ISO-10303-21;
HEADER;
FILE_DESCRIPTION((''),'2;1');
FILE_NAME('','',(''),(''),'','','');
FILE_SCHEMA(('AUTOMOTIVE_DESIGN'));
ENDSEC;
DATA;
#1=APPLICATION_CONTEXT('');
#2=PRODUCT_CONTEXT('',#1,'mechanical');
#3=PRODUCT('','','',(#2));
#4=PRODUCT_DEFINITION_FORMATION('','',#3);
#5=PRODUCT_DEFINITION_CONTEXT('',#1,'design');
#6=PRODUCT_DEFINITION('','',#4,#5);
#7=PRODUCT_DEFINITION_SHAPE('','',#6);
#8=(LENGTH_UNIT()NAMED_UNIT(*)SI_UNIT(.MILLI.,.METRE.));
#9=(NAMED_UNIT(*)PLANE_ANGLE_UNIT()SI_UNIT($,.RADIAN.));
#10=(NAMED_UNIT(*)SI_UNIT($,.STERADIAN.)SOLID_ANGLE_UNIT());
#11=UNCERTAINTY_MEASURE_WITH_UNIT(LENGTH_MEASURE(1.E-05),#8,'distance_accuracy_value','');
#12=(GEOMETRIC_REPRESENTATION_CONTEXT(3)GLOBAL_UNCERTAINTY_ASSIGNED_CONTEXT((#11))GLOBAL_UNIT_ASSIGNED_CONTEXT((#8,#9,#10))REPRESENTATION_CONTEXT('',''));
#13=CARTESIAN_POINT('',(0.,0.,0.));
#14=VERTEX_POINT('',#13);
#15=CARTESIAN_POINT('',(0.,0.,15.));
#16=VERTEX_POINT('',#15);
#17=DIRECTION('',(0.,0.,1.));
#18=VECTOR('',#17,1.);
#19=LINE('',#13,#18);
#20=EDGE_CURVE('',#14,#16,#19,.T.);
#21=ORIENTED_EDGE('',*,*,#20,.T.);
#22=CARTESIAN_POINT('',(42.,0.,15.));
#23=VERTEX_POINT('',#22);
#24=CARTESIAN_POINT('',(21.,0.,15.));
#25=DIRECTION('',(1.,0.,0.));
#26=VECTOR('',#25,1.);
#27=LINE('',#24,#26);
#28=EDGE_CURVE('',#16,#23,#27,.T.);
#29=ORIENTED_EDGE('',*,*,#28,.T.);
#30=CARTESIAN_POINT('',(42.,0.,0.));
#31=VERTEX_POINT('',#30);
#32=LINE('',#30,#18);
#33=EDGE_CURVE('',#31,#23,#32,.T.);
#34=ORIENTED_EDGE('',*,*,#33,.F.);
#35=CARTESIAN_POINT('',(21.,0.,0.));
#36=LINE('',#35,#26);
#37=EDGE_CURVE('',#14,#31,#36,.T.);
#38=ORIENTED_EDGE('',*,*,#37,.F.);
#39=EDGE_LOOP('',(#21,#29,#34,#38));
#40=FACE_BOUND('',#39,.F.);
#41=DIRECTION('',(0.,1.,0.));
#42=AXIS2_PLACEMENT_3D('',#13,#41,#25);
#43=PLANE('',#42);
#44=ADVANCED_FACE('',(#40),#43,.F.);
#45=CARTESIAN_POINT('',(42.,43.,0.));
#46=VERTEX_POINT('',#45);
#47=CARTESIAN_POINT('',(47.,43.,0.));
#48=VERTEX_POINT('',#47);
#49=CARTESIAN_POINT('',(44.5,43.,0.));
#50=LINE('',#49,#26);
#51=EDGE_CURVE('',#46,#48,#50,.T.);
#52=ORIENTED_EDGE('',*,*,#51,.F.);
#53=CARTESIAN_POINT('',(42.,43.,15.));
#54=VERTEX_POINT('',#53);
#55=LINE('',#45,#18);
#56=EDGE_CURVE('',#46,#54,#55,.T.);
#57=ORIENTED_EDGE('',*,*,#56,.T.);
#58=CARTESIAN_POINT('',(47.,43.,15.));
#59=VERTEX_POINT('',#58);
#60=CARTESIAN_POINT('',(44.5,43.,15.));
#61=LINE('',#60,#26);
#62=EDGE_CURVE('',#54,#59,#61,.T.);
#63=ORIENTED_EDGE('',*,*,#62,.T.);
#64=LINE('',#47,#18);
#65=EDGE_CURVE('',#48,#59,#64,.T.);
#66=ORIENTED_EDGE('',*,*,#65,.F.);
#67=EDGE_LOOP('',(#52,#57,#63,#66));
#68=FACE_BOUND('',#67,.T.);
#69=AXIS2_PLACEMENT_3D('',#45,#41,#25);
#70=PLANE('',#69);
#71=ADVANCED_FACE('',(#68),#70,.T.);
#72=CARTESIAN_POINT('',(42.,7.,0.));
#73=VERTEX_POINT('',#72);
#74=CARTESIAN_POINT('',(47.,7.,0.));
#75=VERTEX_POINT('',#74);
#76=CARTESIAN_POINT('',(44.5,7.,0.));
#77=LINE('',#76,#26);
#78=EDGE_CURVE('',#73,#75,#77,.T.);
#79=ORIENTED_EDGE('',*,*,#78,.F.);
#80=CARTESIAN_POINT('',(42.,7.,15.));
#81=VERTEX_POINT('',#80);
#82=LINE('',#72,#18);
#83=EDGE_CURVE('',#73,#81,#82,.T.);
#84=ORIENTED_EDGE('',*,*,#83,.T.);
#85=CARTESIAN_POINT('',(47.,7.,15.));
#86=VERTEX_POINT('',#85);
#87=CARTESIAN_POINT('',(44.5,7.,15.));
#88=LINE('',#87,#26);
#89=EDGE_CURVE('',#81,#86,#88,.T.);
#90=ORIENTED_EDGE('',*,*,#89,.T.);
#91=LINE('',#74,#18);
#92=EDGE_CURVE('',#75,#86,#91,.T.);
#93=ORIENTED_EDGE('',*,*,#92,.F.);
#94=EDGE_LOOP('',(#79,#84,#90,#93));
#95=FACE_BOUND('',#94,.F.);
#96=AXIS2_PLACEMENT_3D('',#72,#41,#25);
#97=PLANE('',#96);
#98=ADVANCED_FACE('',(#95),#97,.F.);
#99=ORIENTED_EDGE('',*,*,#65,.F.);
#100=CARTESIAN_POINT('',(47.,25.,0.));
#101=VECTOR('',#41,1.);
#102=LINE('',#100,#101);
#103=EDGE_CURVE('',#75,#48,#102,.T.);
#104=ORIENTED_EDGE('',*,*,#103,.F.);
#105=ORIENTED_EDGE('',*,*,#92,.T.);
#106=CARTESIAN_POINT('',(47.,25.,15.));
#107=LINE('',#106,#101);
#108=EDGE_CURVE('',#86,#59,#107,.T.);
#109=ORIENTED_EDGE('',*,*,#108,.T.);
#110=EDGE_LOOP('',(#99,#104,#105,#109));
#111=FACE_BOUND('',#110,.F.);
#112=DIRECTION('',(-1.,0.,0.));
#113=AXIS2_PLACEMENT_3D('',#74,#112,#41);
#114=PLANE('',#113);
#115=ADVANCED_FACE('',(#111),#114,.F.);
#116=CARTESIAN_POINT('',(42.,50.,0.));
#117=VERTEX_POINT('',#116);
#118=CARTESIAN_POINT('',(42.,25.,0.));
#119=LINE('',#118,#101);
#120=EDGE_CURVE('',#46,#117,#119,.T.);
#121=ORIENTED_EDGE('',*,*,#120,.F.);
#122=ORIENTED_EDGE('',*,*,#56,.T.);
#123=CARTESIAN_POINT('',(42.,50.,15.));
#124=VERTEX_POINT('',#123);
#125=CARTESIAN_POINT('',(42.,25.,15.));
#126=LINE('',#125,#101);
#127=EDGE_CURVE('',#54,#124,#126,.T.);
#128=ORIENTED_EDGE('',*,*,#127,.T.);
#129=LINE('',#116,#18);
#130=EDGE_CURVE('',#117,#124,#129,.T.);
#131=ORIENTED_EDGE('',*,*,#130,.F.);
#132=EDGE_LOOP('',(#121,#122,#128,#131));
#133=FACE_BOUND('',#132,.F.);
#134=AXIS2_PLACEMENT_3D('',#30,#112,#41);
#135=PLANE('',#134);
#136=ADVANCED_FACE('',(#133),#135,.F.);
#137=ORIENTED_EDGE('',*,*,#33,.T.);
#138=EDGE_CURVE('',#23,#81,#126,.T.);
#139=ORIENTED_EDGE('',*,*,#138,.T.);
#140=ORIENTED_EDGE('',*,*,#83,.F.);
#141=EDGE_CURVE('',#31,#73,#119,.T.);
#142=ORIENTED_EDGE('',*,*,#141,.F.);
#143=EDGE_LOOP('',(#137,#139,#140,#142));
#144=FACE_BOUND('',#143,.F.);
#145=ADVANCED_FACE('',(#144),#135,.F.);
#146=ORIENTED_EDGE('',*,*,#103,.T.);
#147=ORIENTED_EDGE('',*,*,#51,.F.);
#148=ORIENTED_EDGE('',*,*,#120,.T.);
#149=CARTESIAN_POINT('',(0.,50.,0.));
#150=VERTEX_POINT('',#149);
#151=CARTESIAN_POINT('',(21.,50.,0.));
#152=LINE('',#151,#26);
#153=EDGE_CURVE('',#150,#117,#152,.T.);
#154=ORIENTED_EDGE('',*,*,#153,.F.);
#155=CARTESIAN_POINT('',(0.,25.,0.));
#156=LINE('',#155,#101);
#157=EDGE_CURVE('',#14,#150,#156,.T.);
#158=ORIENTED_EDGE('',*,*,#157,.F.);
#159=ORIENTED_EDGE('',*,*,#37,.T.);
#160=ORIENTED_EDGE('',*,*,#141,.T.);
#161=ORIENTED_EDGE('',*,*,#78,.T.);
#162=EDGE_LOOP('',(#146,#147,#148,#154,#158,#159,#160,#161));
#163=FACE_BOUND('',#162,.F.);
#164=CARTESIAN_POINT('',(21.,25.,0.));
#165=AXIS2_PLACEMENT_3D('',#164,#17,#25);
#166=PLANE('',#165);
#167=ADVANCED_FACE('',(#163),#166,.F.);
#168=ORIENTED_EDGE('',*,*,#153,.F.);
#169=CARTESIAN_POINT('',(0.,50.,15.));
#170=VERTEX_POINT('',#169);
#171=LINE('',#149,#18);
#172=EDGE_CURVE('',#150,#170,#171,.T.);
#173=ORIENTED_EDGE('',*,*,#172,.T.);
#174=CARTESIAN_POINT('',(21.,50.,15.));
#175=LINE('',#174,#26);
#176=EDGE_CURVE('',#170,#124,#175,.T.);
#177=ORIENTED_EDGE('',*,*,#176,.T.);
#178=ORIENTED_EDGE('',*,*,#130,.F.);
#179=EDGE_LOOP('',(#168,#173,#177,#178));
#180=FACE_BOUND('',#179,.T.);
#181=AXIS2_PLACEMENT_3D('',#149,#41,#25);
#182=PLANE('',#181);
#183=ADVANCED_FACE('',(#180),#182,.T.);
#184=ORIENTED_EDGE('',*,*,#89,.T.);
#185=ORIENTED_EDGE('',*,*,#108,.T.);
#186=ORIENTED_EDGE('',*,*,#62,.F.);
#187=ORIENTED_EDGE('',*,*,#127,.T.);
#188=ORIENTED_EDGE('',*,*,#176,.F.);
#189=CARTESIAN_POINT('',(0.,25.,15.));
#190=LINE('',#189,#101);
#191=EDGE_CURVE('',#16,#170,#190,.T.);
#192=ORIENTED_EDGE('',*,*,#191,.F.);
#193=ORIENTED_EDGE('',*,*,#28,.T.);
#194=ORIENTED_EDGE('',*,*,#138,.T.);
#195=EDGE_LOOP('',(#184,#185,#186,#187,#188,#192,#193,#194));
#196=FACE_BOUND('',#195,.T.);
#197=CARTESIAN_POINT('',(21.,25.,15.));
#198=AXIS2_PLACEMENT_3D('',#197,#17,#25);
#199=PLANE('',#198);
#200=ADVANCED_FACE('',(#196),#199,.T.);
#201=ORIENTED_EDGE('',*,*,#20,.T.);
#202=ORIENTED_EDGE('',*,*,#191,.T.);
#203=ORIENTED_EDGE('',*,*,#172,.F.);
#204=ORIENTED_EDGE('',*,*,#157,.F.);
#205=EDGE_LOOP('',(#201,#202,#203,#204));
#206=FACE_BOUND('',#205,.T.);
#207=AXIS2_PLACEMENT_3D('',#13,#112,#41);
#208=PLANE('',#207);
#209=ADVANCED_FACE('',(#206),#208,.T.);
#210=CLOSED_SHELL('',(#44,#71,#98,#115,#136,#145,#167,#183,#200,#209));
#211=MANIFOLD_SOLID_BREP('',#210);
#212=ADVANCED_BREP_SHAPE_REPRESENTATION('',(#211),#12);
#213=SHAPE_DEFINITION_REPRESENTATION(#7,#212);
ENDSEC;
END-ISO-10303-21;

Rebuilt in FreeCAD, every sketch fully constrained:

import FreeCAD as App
import Part
import Sketcher

doc = App.newDocument("Part")
body = doc.addObject("PartDesign::Body", "Body")

sketch1 = body.newObject("Sketcher::SketchObject", "Sketch")
sketch1.AttachmentSupport = (doc.getObject("XY_Plane"), [""])
sketch1.MapMode = "FlatFace"
sketch1.addGeometry([
    Part.LineSegment(App.Vector(0, 50, 0), App.Vector(0, 0, 0)),
    Part.LineSegment(App.Vector(0, 0, 0), App.Vector(42, 0, 0)),
    Part.LineSegment(App.Vector(42, 0, 0), App.Vector(42, 50, 0)),
    Part.LineSegment(App.Vector(42, 50, 0), App.Vector(0, 50, 0)),
], False)
sketch1.addConstraint([
    Sketcher.Constraint("Coincident", 0, 2, 1, 1),
    Sketcher.Constraint("Coincident", 1, 2, 2, 1),
    Sketcher.Constraint("Coincident", 2, 2, 3, 1),
    Sketcher.Constraint("Coincident", 3, 2, 0, 1),
    Sketcher.Constraint("Vertical", 0),
    Sketcher.Constraint("Horizontal", 1),
    Sketcher.Constraint("Vertical", 2),
    Sketcher.Constraint("Horizontal", 3),
    Sketcher.Constraint("Coincident", 0, 2, -1, 1),
    Sketcher.Constraint("DistanceX", 1, 1, 1, 2, 42.0),
    Sketcher.Constraint("DistanceY", 0, 2, 0, 1, 50.0),
])
pad1 = body.newObject("PartDesign::Pad", "Pad")
pad1.Profile = sketch1
pad1.Length = 15
body2 = doc.addObject("PartDesign::Body", "Body001")

sketch2 = body2.newObject("Sketcher::SketchObject", "Sketch001")
sketch2.AttachmentSupport = (doc.getObject("XY_Plane001"), [""])
sketch2.MapMode = "FlatFace"
sketch2.addGeometry([
    Part.LineSegment(App.Vector(42, 43, 0), App.Vector(42, 7, 0)),
    Part.LineSegment(App.Vector(42, 7, 0), App.Vector(47, 7, 0)),
    Part.LineSegment(App.Vector(47, 7, 0), App.Vector(47, 43, 0)),
    Part.LineSegment(App.Vector(47, 43, 0), App.Vector(42, 43, 0)),
], False)
sketch2.addConstraint([
    Sketcher.Constraint("Coincident", 0, 2, 1, 1),
    Sketcher.Constraint("Coincident", 1, 2, 2, 1),
    Sketcher.Constraint("Coincident", 2, 2, 3, 1),
    Sketcher.Constraint("Coincident", 3, 2, 0, 1),
    Sketcher.Constraint("Vertical", 0),
    Sketcher.Constraint("Horizontal", 1),
    Sketcher.Constraint("Vertical", 2),
    Sketcher.Constraint("Horizontal", 3),
    Sketcher.Constraint("DistanceX", 1, 1, 1, 2, 5.0),
    Sketcher.Constraint("DistanceY", 0, 2, 0, 1, 36.0),
    Sketcher.Constraint("DistanceX", -1, 1, 0, 2, 42.0),
    Sketcher.Constraint("DistanceY", -1, 1, 0, 2, 7.0),
])
pad2 = body2.newObject("PartDesign::Pad", "Pad001")
pad2.Profile = sketch2
pad2.Length = 15
doc.recompute()

boolean = body2.newObject("PartDesign::Boolean", "Boolean")
boolean.Type = "Fuse"
boolean.addObjects([body])

doc.recompute()
